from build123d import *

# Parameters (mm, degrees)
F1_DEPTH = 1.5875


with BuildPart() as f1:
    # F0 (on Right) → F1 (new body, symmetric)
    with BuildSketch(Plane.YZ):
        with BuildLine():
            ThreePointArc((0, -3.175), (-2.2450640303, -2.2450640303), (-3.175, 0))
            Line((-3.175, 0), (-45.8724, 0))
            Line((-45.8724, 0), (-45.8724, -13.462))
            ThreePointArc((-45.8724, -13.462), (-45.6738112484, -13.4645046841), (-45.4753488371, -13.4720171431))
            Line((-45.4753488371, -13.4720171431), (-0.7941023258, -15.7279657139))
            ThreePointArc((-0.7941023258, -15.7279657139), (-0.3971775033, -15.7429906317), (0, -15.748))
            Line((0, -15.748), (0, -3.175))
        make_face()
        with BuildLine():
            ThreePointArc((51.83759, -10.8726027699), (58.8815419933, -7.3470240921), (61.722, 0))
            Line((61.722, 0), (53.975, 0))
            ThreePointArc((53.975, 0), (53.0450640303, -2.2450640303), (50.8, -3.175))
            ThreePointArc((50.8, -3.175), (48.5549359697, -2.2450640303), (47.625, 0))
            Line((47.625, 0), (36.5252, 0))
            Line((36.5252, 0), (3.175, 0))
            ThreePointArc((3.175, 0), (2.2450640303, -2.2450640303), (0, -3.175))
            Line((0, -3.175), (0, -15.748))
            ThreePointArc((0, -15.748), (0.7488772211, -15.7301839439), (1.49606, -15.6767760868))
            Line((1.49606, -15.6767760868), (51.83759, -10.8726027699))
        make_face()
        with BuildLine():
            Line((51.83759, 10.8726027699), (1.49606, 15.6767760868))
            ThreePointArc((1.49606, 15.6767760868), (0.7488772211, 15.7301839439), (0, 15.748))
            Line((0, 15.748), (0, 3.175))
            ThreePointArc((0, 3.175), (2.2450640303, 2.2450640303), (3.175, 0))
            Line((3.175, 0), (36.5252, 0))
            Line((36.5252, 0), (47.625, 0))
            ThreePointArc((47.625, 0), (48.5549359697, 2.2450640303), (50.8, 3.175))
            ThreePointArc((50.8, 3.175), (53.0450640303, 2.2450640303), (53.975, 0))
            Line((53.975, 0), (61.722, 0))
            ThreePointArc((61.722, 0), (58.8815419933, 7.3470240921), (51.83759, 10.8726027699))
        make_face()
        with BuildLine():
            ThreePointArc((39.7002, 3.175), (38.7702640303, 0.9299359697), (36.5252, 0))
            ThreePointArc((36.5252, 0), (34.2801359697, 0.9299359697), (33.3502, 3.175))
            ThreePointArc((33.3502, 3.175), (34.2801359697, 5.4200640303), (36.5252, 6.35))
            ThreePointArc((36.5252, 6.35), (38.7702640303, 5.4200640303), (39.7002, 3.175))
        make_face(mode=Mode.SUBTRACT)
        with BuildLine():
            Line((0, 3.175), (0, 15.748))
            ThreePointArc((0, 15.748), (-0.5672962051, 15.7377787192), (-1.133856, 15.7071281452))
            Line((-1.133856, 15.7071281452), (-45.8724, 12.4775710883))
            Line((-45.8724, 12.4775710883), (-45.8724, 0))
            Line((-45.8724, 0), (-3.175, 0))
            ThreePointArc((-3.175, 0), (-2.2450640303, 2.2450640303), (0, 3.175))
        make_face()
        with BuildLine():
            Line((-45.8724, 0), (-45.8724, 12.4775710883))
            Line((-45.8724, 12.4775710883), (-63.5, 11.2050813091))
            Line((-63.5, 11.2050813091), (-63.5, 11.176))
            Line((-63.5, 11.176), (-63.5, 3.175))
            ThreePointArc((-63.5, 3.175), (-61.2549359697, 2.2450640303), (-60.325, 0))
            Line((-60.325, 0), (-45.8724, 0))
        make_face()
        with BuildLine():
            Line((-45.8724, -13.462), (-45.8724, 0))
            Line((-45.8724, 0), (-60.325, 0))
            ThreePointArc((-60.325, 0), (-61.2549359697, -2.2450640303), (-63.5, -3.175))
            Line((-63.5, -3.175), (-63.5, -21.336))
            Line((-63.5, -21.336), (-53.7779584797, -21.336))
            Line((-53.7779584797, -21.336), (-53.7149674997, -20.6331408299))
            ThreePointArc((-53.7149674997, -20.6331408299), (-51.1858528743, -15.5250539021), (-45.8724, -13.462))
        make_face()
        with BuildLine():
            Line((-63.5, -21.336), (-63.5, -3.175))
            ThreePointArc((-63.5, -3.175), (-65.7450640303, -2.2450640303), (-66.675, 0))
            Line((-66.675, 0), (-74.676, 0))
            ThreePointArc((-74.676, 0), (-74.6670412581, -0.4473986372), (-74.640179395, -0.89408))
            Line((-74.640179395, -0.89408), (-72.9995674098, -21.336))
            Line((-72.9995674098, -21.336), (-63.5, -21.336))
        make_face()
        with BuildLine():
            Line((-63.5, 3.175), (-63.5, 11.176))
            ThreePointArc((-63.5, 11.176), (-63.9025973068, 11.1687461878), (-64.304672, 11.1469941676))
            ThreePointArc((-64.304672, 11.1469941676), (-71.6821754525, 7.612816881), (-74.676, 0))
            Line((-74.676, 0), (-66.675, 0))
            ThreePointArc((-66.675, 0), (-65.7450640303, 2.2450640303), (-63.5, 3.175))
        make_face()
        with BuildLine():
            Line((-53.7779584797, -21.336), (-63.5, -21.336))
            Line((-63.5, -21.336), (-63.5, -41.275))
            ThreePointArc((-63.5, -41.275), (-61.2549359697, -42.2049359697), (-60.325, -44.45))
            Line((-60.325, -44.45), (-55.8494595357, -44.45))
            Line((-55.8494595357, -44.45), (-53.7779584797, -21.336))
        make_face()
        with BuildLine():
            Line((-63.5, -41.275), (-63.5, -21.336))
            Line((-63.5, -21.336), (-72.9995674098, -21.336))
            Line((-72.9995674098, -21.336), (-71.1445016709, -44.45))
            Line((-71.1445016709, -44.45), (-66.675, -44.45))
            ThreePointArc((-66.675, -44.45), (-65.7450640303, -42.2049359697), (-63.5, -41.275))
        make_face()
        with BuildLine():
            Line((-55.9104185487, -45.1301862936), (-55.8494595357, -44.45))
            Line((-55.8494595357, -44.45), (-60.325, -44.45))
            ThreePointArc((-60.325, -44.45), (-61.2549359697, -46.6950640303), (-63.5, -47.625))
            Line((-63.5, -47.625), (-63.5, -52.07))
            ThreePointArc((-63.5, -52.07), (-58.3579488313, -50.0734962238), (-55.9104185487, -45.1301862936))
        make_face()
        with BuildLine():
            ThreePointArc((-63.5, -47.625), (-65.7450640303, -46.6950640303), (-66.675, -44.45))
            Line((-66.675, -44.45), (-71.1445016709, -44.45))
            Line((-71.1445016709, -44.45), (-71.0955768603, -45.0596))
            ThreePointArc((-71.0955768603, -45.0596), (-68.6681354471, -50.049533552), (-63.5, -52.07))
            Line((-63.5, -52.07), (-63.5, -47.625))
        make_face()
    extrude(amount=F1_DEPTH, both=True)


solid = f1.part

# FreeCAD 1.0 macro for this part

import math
import FreeCAD as App
import Part
import Sketcher
Q = App.Units.Quantity

doc = App.newDocument("Part")
body = doc.addObject("PartDesign::Body", "Body")

sketch1 = doc.addObject("Sketcher::SketchObject", "Sketch")
body.addObject(sketch1)
sketch1.AttachmentSupport = (doc.YZ_Plane, [""])
sketch1.MapMode = "FlatFace"
sketch1.addGeometry(Part.ArcOfCircle(Part.Circle(App.Vector(-45.872, -21.336, 0), App.Vector(0, 0, 1), 7.874), math.radians(87.11), math.radians(90)), False)
sketch1.addGeometry(Part.LineSegment(App.Vector(-45.475, -13.472, 0), App.Vector(-0.794, -15.728, 0)), False)
sketch1.addGeometry(Part.ArcOfCircle(Part.Circle(App.Vector(0, 0, 0), App.Vector(0, 0, 1), 15.748), math.radians(-92.89), math.radians(-90)), False)
sketch1.addGeometry(Part.ArcOfCircle(Part.Circle(App.Vector(0, 0, 0), App.Vector(0, 0, 1), 15.748), math.radians(-90), math.radians(-84.55)), False)
sketch1.addGeometry(Part.LineSegment(App.Vector(1.496, -15.677, 0), App.Vector(51.838, -10.873, 0)), False)
sketch1.addGeometry(Part.ArcOfCircle(Part.Circle(App.Vector(50.8, 0, 0), App.Vector(0, 0, 1), 10.922), math.radians(-85), math.radians(0)), False)
sketch1.addGeometry(Part.ArcOfCircle(Part.Circle(App.Vector(50.8, 0, 0), App.Vector(0, 0, 1), 10.922), math.radians(0), math.radians(85)), False)
sketch1.addGeometry(Part.LineSegment(App.Vector(51.838, 10.873, 0), App.Vector(1.496, 15.677, 0)), False)
sketch1.addGeometry(Part.ArcOfCircle(Part.Circle(App.Vector(0, 0, 0), App.Vector(0, 0, 1), 15.748), math.radians(84.55), math.radians(90)), False)
sketch1.addGeometry(Part.ArcOfCircle(Part.Circle(App.Vector(0, 0, 0), App.Vector(0, 0, 1), 15.748), math.radians(90), math.radians(94.13)), False)
sketch1.addGeometry(Part.LineSegment(App.Vector(-1.134, 15.707, 0), App.Vector(-63.5, 11.205, 0)), False)
sketch1.addGeometry(Part.LineSegment(App.Vector(-63.5, 11.205, 0), App.Vector(-63.5, 11.176, 0)), False)
sketch1.addGeometry(Part.ArcOfCircle(Part.Circle(App.Vector(-63.5, 0, 0), App.Vector(0, 0, 1), 11.176), math.radians(90), math.radians(94.13)), False)
sketch1.addGeometry(Part.ArcOfCircle(Part.Circle(App.Vector(-63.5, 0, 0), App.Vector(0, 0, 1), 11.176), math.radians(94), math.radians(180)), False)
sketch1.addGeometry(Part.ArcOfCircle(Part.Circle(App.Vector(-63.5, 0, 0), App.Vector(0, 0, 1), 11.176), math.radians(180), math.radians(184.59)), False)
sketch1.addGeometry(Part.LineSegment(App.Vector(-74.64, -0.894, 0), App.Vector(-73, -21.336, 0)), False)
sketch1.addGeometry(Part.LineSegment(App.Vector(-73, -21.336, 0), App.Vector(-71.145, -44.45, 0)), False)
sketch1.addGeometry(Part.LineSegment(App.Vector(-71.145, -44.45, 0), App.Vector(-71.096, -45.06, 0)), False)
sketch1.addGeometry(Part.ArcOfCircle(Part.Circle(App.Vector(-63.5, -44.45, 0), App.Vector(0, 0, 1), 7.62), math.radians(-175), math.radians(-5)), False)
sketch1.addGeometry(Part.LineSegment(App.Vector(-55.91, -45.13, 0), App.Vector(-55.849, -44.45, 0)), False)
sketch1.addGeometry(Part.LineSegment(App.Vector(-55.849, -44.45, 0), App.Vector(-53.778, -21.336, 0)), False)
sketch1.addGeometry(Part.LineSegment(App.Vector(-53.778, -21.336, 0), App.Vector(-53.715, -20.633, 0)), False)
sketch1.addGeometry(Part.ArcOfCircle(Part.Circle(App.Vector(-45.872, -21.336, 0), App.Vector(0, 0, 1), 7.874), math.radians(90), math.radians(175)), False)
sketch1.addGeometry(Part.ArcOfCircle(Part.Circle(App.Vector(0, 0, 0), App.Vector(0, 0, 1), 3.175), math.radians(180), math.radians(270)), False)
sketch1.addGeometry(Part.ArcOfCircle(Part.Circle(App.Vector(0, 0, 0), App.Vector(0, 0, 1), 3.175), math.radians(90), math.radians(180)), False)
sketch1.addGeometry(Part.ArcOfCircle(Part.Circle(App.Vector(0, 0, 0), App.Vector(0, 0, 1), 3.175), math.radians(0), math.radians(90)), False)
sketch1.addGeometry(Part.ArcOfCircle(Part.Circle(App.Vector(0, 0, 0), App.Vector(0, 0, 1), 3.175), math.radians(-90), math.radians(0)), False)
sketch1.addGeometry(Part.ArcOfCircle(Part.Circle(App.Vector(-63.5, -44.45, 0), App.Vector(0, 0, 1), 3.175), math.radians(90), math.radians(180)), False)
sketch1.addGeometry(Part.ArcOfCircle(Part.Circle(App.Vector(-63.5, -44.45, 0), App.Vector(0, 0, 1), 3.175), math.radians(0), math.radians(90)), False)
sketch1.addGeometry(Part.ArcOfCircle(Part.Circle(App.Vector(-63.5, -44.45, 0), App.Vector(0, 0, 1), 3.175), math.radians(-90), math.radians(0)), False)
sketch1.addGeometry(Part.ArcOfCircle(Part.Circle(App.Vector(-63.5, -44.45, 0), App.Vector(0, 0, 1), 3.175), math.radians(180), math.radians(270)), False)
sketch1.addGeometry(Part.ArcOfCircle(Part.Circle(App.Vector(-63.5, 0, 0), App.Vector(0, 0, 1), 3.175), math.radians(0), math.radians(90)), False)
sketch1.addGeometry(Part.ArcOfCircle(Part.Circle(App.Vector(-63.5, 0, 0), App.Vector(0, 0, 1), 3.175), math.radians(-90), math.radians(0)), False)
sketch1.addGeometry(Part.ArcOfCircle(Part.Circle(App.Vector(-63.5, 0, 0), App.Vector(0, 0, 1), 3.175), math.radians(180), math.radians(270)), False)
sketch1.addGeometry(Part.ArcOfCircle(Part.Circle(App.Vector(-63.5, 0, 0), App.Vector(0, 0, 1), 3.175), math.radians(90), math.radians(180)), False)
sketch1.addGeometry(Part.ArcOfCircle(Part.Circle(App.Vector(50.8, 0, 0), App.Vector(0, 0, 1), 3.175), math.radians(-90), math.radians(0)), False)
sketch1.addGeometry(Part.ArcOfCircle(Part.Circle(App.Vector(50.8, 0, 0), App.Vector(0, 0, 1), 3.175), math.radians(180), math.radians(270)), False)
sketch1.addGeometry(Part.ArcOfCircle(Part.Circle(App.Vector(50.8, 0, 0), App.Vector(0, 0, 1), 3.175), math.radians(90), math.radians(180)), False)
sketch1.addGeometry(Part.ArcOfCircle(Part.Circle(App.Vector(50.8, 0, 0), App.Vector(0, 0, 1), 3.175), math.radians(0), math.radians(90)), False)
sketch1.addGeometry(Part.ArcOfCircle(Part.Circle(App.Vector(36.525, 3.175, 0), App.Vector(0, 0, 1), 3.175), math.radians(0), math.radians(90)), False)
sketch1.addGeometry(Part.ArcOfCircle(Part.Circle(App.Vector(36.525, 3.175, 0), App.Vector(0, 0, 1), 3.175), math.radians(-90), math.radians(0)), False)
sketch1.addGeometry(Part.ArcOfCircle(Part.Circle(App.Vector(36.525, 3.175, 0), App.Vector(0, 0, 1), 3.175), math.radians(180), math.radians(270)), False)
sketch1.addGeometry(Part.ArcOfCircle(Part.Circle(App.Vector(36.525, 3.175, 0), App.Vector(0, 0, 1), 3.175), math.radians(90), math.radians(180)), False)
sketch1.addConstraint(Sketcher.Constraint("Tangent", 0, 1, 1, 1))
sketch1.addConstraint(Sketcher.Constraint("Tangent", 1, 2, 2, 1))
sketch1.addConstraint(Sketcher.Constraint("Tangent", 2, 2, 3, 1))
sketch1.addConstraint(Sketcher.Constraint("Tangent", 3, 2, 4, 1))
sketch1.addConstraint(Sketcher.Constraint("Tangent", 4, 2, 5, 1))
sketch1.addConstraint(Sketcher.Constraint("Tangent", 5, 2, 6, 1))
sketch1.addConstraint(Sketcher.Constraint("Tangent", 6, 2, 7, 1))
sketch1.addConstraint(Sketcher.Constraint("Tangent", 7, 2, 8, 1))
sketch1.addConstraint(Sketcher.Constraint("Tangent", 8, 2, 9, 1))
sketch1.addConstraint(Sketcher.Constraint("Tangent", 9, 2, 10, 1))
sketch1.addConstraint(Sketcher.Constraint("Coincident", 10, 2, 11, 1))
sketch1.addConstraint(Sketcher.Constraint("Coincident", 11, 2, 12, 1))
sketch1.addConstraint(Sketcher.Constraint("Tangent", 12, 2, 13, 1))
sketch1.addConstraint(Sketcher.Constraint("Tangent", 13, 2, 14, 1))
sketch1.addConstraint(Sketcher.Constraint("Tangent", 14, 2, 15, 1))
sketch1.addConstraint(Sketcher.Constraint("Coincident", 15, 2, 16, 1))
sketch1.addConstraint(Sketcher.Constraint("Coincident", 16, 2, 17, 1))
sketch1.addConstraint(Sketcher.Constraint("Tangent", 17, 2, 18, 1))
sketch1.addConstraint(Sketcher.Constraint("Tangent", 18, 2, 19, 1))
sketch1.addConstraint(Sketcher.Constraint("Coincident", 19, 2, 20, 1))
sketch1.addConstraint(Sketcher.Constraint("Coincident", 20, 2, 21, 1))
sketch1.addConstraint(Sketcher.Constraint("Tangent", 21, 2, 22, 2))
sketch1.addConstraint(Sketcher.Constraint("Tangent", 22, 1, 0, 2))
sketch1.addConstraint(Sketcher.Constraint("Tangent", 23, 1, 24, 2))
sketch1.addConstraint(Sketcher.Constraint("Tangent", 24, 1, 25, 2))
sketch1.addConstraint(Sketcher.Constraint("Tangent", 25, 1, 26, 2))
sketch1.addConstraint(Sketcher.Constraint("Tangent", 26, 1, 23, 2))
sketch1.addConstraint(Sketcher.Constraint("Tangent", 27, 1, 28, 2))
sketch1.addConstraint(Sketcher.Constraint("Tangent", 28, 1, 29, 2))
sketch1.addConstraint(Sketcher.Constraint("Tangent", 29, 1, 30, 2))
sketch1.addConstraint(Sketcher.Constraint("Tangent", 30, 1, 27, 2))
sketch1.addConstraint(Sketcher.Constraint("Tangent", 31, 1, 32, 2))
sketch1.addConstraint(Sketcher.Constraint("Tangent", 32, 1, 33, 2))
sketch1.addConstraint(Sketcher.Constraint("Tangent", 33, 1, 34, 2))
sketch1.addConstraint(Sketcher.Constraint("Tangent", 34, 1, 31, 2))
sketch1.addConstraint(Sketcher.Constraint("Tangent", 35, 1, 36, 2))
sketch1.addConstraint(Sketcher.Constraint("Tangent", 36, 1, 37, 2))
sketch1.addConstraint(Sketcher.Constraint("Tangent", 37, 1, 38, 2))
sketch1.addConstraint(Sketcher.Constraint("Tangent", 38, 1, 35, 2))
sketch1.addConstraint(Sketcher.Constraint("Tangent", 39, 1, 40, 2))
sketch1.addConstraint(Sketcher.Constraint("Tangent", 40, 1, 41, 2))
sketch1.addConstraint(Sketcher.Constraint("Tangent", 41, 1, 42, 2))
sketch1.addConstraint(Sketcher.Constraint("Tangent", 42, 1, 39, 2))
sketch1.addConstraint(Sketcher.Constraint("Vertical", 11))
sketch1.addConstraint(Sketcher.Constraint("Coincident", 2, 3, -1, 1))
sketch1.addConstraint(Sketcher.Constraint("Coincident", 8, 3, -1, 1))
sketch1.addConstraint(Sketcher.Constraint("Coincident", 23, 3, -1, 1))
sketch1.addConstraint(Sketcher.Constraint("Coincident", 14, 3, 12, 3))
sketch1.addConstraint(Sketcher.Constraint("Coincident", 27, 3, 18, 3))
sketch1.addConstraint(Sketcher.Constraint("Coincident", 31, 3, 12, 3))
sketch1.addConstraint(Sketcher.Constraint("Coincident", 35, 3, 5, 3))
sketch1.addConstraint(Sketcher.Constraint("Equal", 2, 3))
sketch1.addConstraint(Sketcher.Constraint("Equal", 5, 6))
sketch1.addConstraint(Sketcher.Constraint("Equal", 3, 8))
sketch1.addConstraint(Sketcher.Constraint("Equal", 8, 9))
sketch1.addConstraint(Sketcher.Constraint("Equal", 0, 22))
sketch1.addConstraint(Sketcher.Constraint("Equal", 23, 24))
sketch1.addConstraint(Sketcher.Constraint("Equal", 26, 27))
sketch1.addConstraint(Sketcher.Constraint("Equal", 27, 28))
sketch1.addConstraint(Sketcher.Constraint("Equal", 30, 31))
sketch1.addConstraint(Sketcher.Constraint("Equal", 31, 32))
sketch1.addConstraint(Sketcher.Constraint("Equal", 34, 35))
sketch1.addConstraint(Sketcher.Constraint("Equal", 35, 36))
sketch1.addConstraint(Sketcher.Constraint("Equal", 38, 39))
sketch1.addConstraint(Sketcher.Constraint("Equal", 39, 40))
sketch1.addConstraint(Sketcher.Constraint("Symmetric", 32, 1, 34, 1, -1))
sketch1.addConstraint(Sketcher.Constraint("Symmetric", 35, 1, 37, 1, -1))
sketch1.addConstraint(Sketcher.Constraint("PointOnObject", 2, 2, -2))
sketch1.addConstraint(Sketcher.Constraint("PointOnObject", 5, 2, -1))
sketch1.addConstraint(Sketcher.Constraint("PointOnObject", 8, 2, -2))
sketch1.addConstraint(Sketcher.Constraint("PointOnObject", 13, 2, -1))
sketch1.addConstraint(Sketcher.Constraint("PointOnObject", 23, 1, -1))
sketch1.addConstraint(Sketcher.Constraint("PointOnObject", 24, 1, -2))
sketch1.addConstraint(Sketcher.Constraint("PointOnObject", 25, 1, -1))
sketch1.addConstraint(Sketcher.Constraint("PointOnObject", 26, 1, -2))
sketch1.addConstraint(Sketcher.Constraint("PointOnObject", 31, 1, -1))
sketch1.addConstraint(Sketcher.Constraint("PointOnObject", 33, 1, -1))
sketch1.addConstraint(Sketcher.Constraint("PointOnObject", 36, 1, -1))
sketch1.addConstraint(Sketcher.Constraint("PointOnObject", 38, 1, -1))
sketch1.addConstraint(Sketcher.Constraint("PointOnObject", 40, 1, -1))
sketch1.addConstraint(Sketcher.Constraint("Parallel", 15, 16))
sketch1.addConstraint(Sketcher.Constraint("Parallel", 16, 17))
sketch1.addConstraint(Sketcher.Constraint("Parallel", 19, 20))
sketch1.addConstraint(Sketcher.Constraint("Parallel", 20, 21))
sketch1.addConstraint(Sketcher.Constraint("Horizontal", 22, 3, 15, 2))
sketch1.addConstraint(Sketcher.Constraint("Horizontal", 30, 3, 16, 2))
sketch1.addConstraint(Sketcher.Constraint("Horizontal", 16, 2, 19, 2))
sketch1.addConstraint(Sketcher.Constraint("Horizontal", 15, 2, 20, 2))
sketch1.addConstraint(Sketcher.Constraint("Horizontal", 19, 2, 28, 1))
sketch1.addConstraint(Sketcher.Constraint("Horizontal", 28, 1, 30, 1))
sketch1.addConstraint(Sketcher.Constraint("Horizontal", 37, 1, 39, 1))
sketch1.addConstraint(Sketcher.Constraint("Horizontal", 39, 1, 41, 1))
sketch1.addConstraint(Sketcher.Constraint("Vertical", 14, 3, 18, 3))
sketch1.addConstraint(Sketcher.Constraint("Vertical", 34, 3, 10, 2))
sketch1.addConstraint(Sketcher.Constraint("Vertical", 0, 3, 22, 1))
sketch1.addConstraint(Sketcher.Constraint("Vertical", 11, 2, 27, 1))
sketch1.addConstraint(Sketcher.Constraint("Vertical", 27, 1, 29, 1))
sketch1.addConstraint(Sketcher.Constraint("Vertical", 29, 1, 32, 1))
sketch1.addConstraint(Sketcher.Constraint("Vertical", 38, 3, 35, 1))
sketch1.addConstraint(Sketcher.Constraint("Vertical", 42, 3, 40, 1))
sketch1.addConstraint(Sketcher.Constraint("Vertical", 40, 1, 42, 1))
sketch1.addConstraint(Sketcher.Constraint("Radius", 18, Q("0.3 in")))
sketch1.addConstraint(Sketcher.Constraint("Radius", 0, Q("0.31 in")))
sketch1.addConstraint(Sketcher.Constraint("Radius", 2, Q("0.62 in")))
sketch1.addConstraint(Sketcher.Constraint("Radius", 5, Q("0.43 in")))
sketch1.addConstraint(Sketcher.Constraint("Radius", 12, Q("0.44 in")))
sketch1.addConstraint(Sketcher.Constraint("DistanceX", -1, 1, 5, 3, Q("2 in")))
sketch1.addConstraint(Sketcher.Constraint("Radius", 23, Q("0.125 in")))
sketch1.addConstraint(Sketcher.Constraint("DistanceX", 12, 3, -1, 1, Q("2.5 in")))
sketch1.addConstraint(Sketcher.Constraint("DistanceY", 0, 3, -1, 1, Q("0.84 in")))
sketch1.addConstraint(Sketcher.Constraint("DistanceY", 18, 3, -1, 1, Q("1.75 in")))
sketch1.addConstraint(Sketcher.Constraint("DistanceX", 0, 3, -1, 1, Q("1.806 in")))
sketch1.addConstraint(Sketcher.Constraint("DistanceX", -1, 1, 39, 3, Q("1.438 in")))
sketch1.addConstraint(Sketcher.Constraint("DistanceY", 11, 2, 11, 1, 0.029081))
sketch1.addConstraint(Sketcher.Constraint("DistanceX", 12, 2, -1, 1, 64.304672))
pad1 = doc.addObject("PartDesign::Pad", "Pad")
body.addObject(pad1)
pad1.Profile = sketch1
pad1.Length = Q("0.125 in")
pad1.Midplane = True

doc.recompute()
